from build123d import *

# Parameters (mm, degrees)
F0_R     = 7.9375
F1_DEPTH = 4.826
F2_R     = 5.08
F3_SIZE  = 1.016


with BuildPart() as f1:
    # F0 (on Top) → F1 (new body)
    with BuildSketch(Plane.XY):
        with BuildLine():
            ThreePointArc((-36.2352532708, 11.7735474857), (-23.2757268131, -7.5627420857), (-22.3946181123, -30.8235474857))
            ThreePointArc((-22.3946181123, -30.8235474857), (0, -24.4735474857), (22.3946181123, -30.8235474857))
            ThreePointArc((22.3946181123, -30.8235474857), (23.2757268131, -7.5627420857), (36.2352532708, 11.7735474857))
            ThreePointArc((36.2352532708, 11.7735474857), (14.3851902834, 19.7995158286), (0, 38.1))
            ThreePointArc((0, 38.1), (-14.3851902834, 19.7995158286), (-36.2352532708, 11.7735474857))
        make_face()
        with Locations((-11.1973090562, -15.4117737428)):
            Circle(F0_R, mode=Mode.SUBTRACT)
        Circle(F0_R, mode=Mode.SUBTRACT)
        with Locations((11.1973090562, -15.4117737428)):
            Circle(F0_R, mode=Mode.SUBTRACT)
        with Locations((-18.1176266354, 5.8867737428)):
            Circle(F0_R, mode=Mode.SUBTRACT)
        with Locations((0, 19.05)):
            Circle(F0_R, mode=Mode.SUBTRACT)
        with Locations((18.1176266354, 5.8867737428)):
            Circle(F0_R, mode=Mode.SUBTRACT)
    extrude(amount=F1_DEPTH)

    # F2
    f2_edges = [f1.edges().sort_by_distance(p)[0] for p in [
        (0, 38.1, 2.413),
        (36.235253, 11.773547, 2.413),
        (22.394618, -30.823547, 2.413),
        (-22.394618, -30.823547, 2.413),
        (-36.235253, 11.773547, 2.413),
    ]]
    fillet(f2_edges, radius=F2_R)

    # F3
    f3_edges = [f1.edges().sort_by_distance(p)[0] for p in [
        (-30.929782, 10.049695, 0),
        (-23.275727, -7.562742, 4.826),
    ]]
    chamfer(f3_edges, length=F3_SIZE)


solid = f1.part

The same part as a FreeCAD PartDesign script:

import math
import FreeCAD as App
import Part
import Sketcher

V = App.Vector
Q = App.Units.Quantity


def edges_at(feature, points):
    """Names of the edges that pass closest to the given points."""
    edges = feature.Shape.Edges
    near = lambda p: min(range(len(edges)), key=lambda i: edges[i].distToShape(Part.Vertex(*p))[0])
    return sorted({f"Edge{near(p) + 1}" for p in points})

doc = App.newDocument("Part")
body = doc.addObject("PartDesign::Body", "Body")

sketch1 = body.newObject("Sketcher::SketchObject", "Sketch")
sketch1.AttachmentSupport = (doc.getObject("XY_Plane"), [""])
sketch1.MapMode = "FlatFace"
sketch1.addGeometry([
    Part.ArcOfCircle(Part.Circle(V(-64, -21, 0), V(0, 0, 1), 43), math.radians(-14), math.radians(50)),
    Part.ArcOfCircle(Part.Circle(V(0, -67, 0), V(0, 0, 1), 43), math.radians(58), math.radians(122)),
    Part.ArcOfCircle(Part.Circle(V(64, -21, 0), V(0, 0, 1), 43), math.radians(130), math.radians(194)),
    Part.ArcOfCircle(Part.Circle(V(39, 54, 0), V(0, 0, 1), 43), math.radians(-158), math.radians(-94)),
    Part.ArcOfCircle(Part.Circle(V(-39, 54, 0), V(0, 0, 1), 43), math.radians(-86), math.radians(-22)),
    Part.Circle(V(-11, -15, 0), V(0, 0, 1), 8),
    Part.Circle(V(11, -15, 0), V(0, 0, 1), 8),
    Part.Circle(V(0, 0, 0), V(0, 0, 1), 8),
    Part.Circle(V(-18, 6, 0), V(0, 0, 1), 8),
    Part.Circle(V(18, 6, 0), V(0, 0, 1), 8),
    Part.Circle(V(0, 19, 0), V(0, 0, 1), 8),
], False)
sketch1.addConstraint([
    Sketcher.Constraint("Coincident", 0, 1, 1, 2),
    Sketcher.Constraint("Coincident", 1, 1, 2, 2),
    Sketcher.Constraint("Coincident", 2, 1, 3, 2),
    Sketcher.Constraint("Coincident", 3, 1, 4, 2),
    Sketcher.Constraint("Coincident", 4, 1, 0, 2),
    Sketcher.Constraint("Coincident", 7, 3, -1, 1),
    Sketcher.Constraint("Equal", 0, 1),
    Sketcher.Constraint("Equal", 1, 2),
    Sketcher.Constraint("Equal", 2, 3),
    Sketcher.Constraint("Equal", 3, 4),
    Sketcher.Constraint("Equal", 5, 6),
    Sketcher.Constraint("Equal", 6, 7),
    Sketcher.Constraint("Equal", 7, 8),
    Sketcher.Constraint("Equal", 8, 9),
    Sketcher.Constraint("Equal", 9, 10),
    Sketcher.Constraint("Symmetric", 0, 3, 2, 3, -2),
    Sketcher.Constraint("Symmetric", 3, 3, 4, 3, -2),
    Sketcher.Constraint("Symmetric", 5, 3, 6, 3, -2),
    Sketcher.Constraint("Symmetric", 8, 3, 9, 3, -2),
    Sketcher.Constraint("PointOnObject", 1, 3, -2),
    Sketcher.Constraint("PointOnObject", 10, 3, -2),
    Sketcher.Constraint("Diameter", 5, Q("0.625 in")),
    Sketcher.Constraint("DistanceY", -1, 1, 3, 1, Q("1.5 in")),
    Sketcher.Constraint("DistanceY", -1, 1, 10, 3, Q("0.75 in")),
    Sketcher.Constraint("Radius", 0, Q("42.664679 mm")),
    Sketcher.Constraint("DistanceY", 0, 3, 4, 1, Q("32.5204 mm")),
    Sketcher.Constraint("DistanceX", -1, 1, 3, 3, Q("39.462859 mm")),
    Sketcher.Constraint("DistanceX", 5, 3, -1, 1, Q("11.197309 mm")),
    Sketcher.Constraint("DistanceX", 0, 1, -1, 1, Q("22.394618 mm")),
    Sketcher.Constraint("DistanceX", 3, 3, 2, 3, Q("24.389388 mm")),
    Sketcher.Constraint("DistanceY", 0, 3, 5, 3, Q("5.335079 mm")),
    Sketcher.Constraint("DistanceX", 0, 3, 8, 3, Q("45.734621 mm")),
    Sketcher.Constraint("DistanceY", 0, 1, 8, 3, Q("36.710321 mm")),
])
pad1 = body.newObject("PartDesign::Pad", "Pad")
pad1.Profile = sketch1
pad1.Length = Q("0.19 in")
doc.recompute()

fillet = body.newObject("PartDesign::Fillet", "Fillet")
fillet.Base = (pad1, edges_at(pad1, [
    (0, 38.1, 2.413),
    (36.235, 11.774, 2.413),
    (22.395, -30.824, 2.413),
    (-22.395, -30.824, 2.413),
    (-36.235, 11.774, 2.413),
]))
fillet.Radius = Q("0.2 in")
doc.recompute()

chamfer = body.newObject("PartDesign::Chamfer", "Chamfer")
chamfer.Base = (fillet, edges_at(fillet, [(-30.93, 10.05, 0), (-23.276, -7.563, 4.826)]))
chamfer.Size = Q("0.04 in")

doc.recompute()
